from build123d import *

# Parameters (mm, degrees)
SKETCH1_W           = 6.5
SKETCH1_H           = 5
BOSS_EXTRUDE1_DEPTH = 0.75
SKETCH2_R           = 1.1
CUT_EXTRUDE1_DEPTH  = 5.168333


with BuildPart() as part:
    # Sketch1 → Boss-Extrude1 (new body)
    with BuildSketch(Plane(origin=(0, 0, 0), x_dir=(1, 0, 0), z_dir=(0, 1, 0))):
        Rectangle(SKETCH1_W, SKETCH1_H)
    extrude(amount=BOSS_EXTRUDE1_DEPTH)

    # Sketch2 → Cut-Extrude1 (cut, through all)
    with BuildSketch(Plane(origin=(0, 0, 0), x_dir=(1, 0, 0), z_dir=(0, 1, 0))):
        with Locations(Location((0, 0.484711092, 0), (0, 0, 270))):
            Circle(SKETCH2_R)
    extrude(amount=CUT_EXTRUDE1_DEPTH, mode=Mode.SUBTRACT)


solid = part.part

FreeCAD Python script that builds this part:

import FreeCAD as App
import Part
import Sketcher

V = App.Vector
Q = App.Units.Quantity


def add_polygon(sketch, points):
    """Adds a closed chain of lines whose ends are joined by coincident constraints."""
    first, n = sketch.GeometryCount, len(points)
    for a, b in zip(points, points[1:] + points[:1]):
        sketch.addGeometry(Part.LineSegment(App.Vector(*a, 0), App.Vector(*b, 0)), False)
    for i in range(n):
        sketch.addConstraint(Sketcher.Constraint("Coincident", first + i, 2, first + (i + 1) % n, 1))

doc = App.newDocument("Part")
params = doc.addObject("Spreadsheet::Sheet", "Params")
for row, (alias, value) in enumerate([
    ("sketch1_height", "5 mm"),
    ("sketch1_width", "6.5 mm"),
    ("pad1_length", "0.75 mm"),
    ("sketch2_diameter", "2.2 mm"),
], start=1):
    params.set(f"A{row}", alias)
    params.set(f"B{row}", "=" + value)
    params.setAlias(f"B{row}", alias)

body = doc.addObject("PartDesign::Body", "Body")

# Sketch on XZ plane
sketch1 = doc.addObject("Sketcher::SketchObject", "Sketch")
body.addObject(sketch1)
sketch1.AttachmentSupport = (doc.XZ_Plane, [""])
sketch1.MapMode = "FlatFace"
add_polygon(sketch1, [(-3, -2), (-3, 2), (3, 2), (3, -2)])  # lines 0-3
sketch1.addConstraint(Sketcher.Constraint("Vertical", 0))
sketch1.addConstraint(Sketcher.Constraint("Horizontal", 1))
sketch1.addConstraint(Sketcher.Constraint("Vertical", 2))
sketch1.addConstraint(Sketcher.Constraint("Horizontal", 3))
sketch1.addConstraint(Sketcher.Constraint("Symmetric", 0, 2, 2, 2, -1, 1))
sketch1.addConstraint(Sketcher.Constraint("DistanceY", 0, 1, 0, 2, Q("5 mm")))
sketch1.addConstraint(Sketcher.Constraint("DistanceX", 1, 1, 1, 2, Q("6.5 mm")))
sketch1.setExpression("Constraints[9]", "Params.sketch1_height")
sketch1.setExpression("Constraints[10]", "Params.sketch1_width")
pad1 = doc.addObject("PartDesign::Pad", "Pad")
body.addObject(pad1)
pad1.Profile = sketch1
pad1.setExpression("Length", "Params.pad1_length")
pad1.Reversed = True

# Sketch on XZ plane
sketch2 = doc.addObject("Sketcher::SketchObject", "Sketch001")
body.addObject(sketch2)
sketch2.AttachmentSupport = (doc.XZ_Plane, [""])
sketch2.MapMode = "FlatFace"
sketch2.addGeometry(Part.Circle(V(0, -0.5, 0), V(0, 0, 1), 1.1), False)
sketch2.addConstraint(Sketcher.Constraint("PointOnObject", 0, 3, -2))
sketch2.addConstraint(Sketcher.Constraint("Diameter", 0, Q("2.2 mm")))
sketch2.addConstraint(Sketcher.Constraint("DistanceY", 0, 3, -1, 1, Q("0.484711 mm")))
sketch2.setExpression("Constraints[1]", "Params.sketch2_diameter")
pocket1 = doc.addObject("PartDesign::Pocket", "Pocket")
body.addObject(pocket1)
pocket1.Profile = sketch2
pocket1.Type = "ThroughAll"

doc.recompute()
